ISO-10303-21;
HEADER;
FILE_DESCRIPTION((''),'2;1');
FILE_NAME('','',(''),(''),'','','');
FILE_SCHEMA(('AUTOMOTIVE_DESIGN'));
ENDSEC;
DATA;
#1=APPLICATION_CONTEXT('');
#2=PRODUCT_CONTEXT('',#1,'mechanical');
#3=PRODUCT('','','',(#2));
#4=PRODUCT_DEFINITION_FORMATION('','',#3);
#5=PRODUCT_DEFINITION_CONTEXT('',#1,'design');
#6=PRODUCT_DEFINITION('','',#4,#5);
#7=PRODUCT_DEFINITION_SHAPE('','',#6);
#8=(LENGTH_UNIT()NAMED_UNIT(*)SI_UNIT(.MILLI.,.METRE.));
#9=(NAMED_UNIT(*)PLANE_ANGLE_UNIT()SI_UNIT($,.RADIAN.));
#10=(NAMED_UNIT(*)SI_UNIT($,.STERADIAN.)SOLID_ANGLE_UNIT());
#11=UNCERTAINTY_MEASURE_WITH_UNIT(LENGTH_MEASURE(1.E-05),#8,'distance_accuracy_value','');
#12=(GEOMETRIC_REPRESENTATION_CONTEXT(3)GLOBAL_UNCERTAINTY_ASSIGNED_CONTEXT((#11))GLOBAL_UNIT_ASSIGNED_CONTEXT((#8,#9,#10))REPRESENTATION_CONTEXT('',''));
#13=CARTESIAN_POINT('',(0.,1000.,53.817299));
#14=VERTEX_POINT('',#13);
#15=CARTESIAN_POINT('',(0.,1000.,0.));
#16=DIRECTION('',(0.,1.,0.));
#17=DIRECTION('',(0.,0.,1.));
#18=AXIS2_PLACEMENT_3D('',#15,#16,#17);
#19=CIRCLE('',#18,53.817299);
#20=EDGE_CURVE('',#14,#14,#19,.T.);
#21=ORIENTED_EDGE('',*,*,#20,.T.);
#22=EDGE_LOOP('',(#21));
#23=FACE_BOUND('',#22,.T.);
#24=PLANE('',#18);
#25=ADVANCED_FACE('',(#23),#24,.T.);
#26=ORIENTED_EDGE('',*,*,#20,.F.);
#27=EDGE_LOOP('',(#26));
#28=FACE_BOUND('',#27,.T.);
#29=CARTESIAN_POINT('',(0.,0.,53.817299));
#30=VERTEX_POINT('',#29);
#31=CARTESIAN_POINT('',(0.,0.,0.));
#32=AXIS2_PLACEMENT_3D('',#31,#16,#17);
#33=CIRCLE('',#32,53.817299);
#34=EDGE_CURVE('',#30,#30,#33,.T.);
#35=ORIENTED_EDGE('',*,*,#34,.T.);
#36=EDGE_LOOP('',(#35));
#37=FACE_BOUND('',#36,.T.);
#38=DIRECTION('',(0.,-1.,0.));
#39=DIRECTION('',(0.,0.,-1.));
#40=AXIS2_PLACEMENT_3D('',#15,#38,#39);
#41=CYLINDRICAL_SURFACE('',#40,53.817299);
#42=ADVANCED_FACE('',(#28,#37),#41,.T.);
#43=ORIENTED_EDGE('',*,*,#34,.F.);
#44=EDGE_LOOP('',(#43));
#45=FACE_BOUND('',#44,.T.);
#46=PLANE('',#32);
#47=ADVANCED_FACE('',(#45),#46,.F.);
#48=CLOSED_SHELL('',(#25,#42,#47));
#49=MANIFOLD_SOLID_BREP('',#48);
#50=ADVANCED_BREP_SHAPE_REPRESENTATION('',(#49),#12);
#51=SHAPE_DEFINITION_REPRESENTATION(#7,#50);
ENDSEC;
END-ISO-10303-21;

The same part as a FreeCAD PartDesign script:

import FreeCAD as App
import Part
import Sketcher
Q = App.Units.Quantity

doc = App.newDocument("Part")
params = doc.addObject("Spreadsheet::Sheet", "Params")
for row, (alias, value) in enumerate([
    ("pad1_length", "1000 mm"),
], start=1):
    params.set(f"A{row}", alias)
    params.set(f"B{row}", "=" + value)
    params.setAlias(f"B{row}", alias)

body = doc.addObject("PartDesign::Body", "Body")

# Sketch on XZ plane
sketch1 = doc.addObject("Sketcher::SketchObject", "Sketch")
body.addObject(sketch1)
sketch1.AttachmentSupport = (doc.XZ_Plane, [""])
sketch1.MapMode = "FlatFace"
sketch1.addGeometry(Part.Circle(App.Vector(0, 0, 0), App.Vector(0, 0, 1), 53.817299), False)
sketch1.addConstraint(Sketcher.Constraint("Coincident", 0, 3, -1, 1))
sketch1.addConstraint(Sketcher.Constraint("Diameter", 0, Q("107.634597 mm")))
pad1 = doc.addObject("PartDesign::Pad", "Pad")
body.addObject(pad1)
pad1.Profile = sketch1
pad1.setExpression("Length", "Params.pad1_length")
pad1.Reversed = True

doc.recompute()
